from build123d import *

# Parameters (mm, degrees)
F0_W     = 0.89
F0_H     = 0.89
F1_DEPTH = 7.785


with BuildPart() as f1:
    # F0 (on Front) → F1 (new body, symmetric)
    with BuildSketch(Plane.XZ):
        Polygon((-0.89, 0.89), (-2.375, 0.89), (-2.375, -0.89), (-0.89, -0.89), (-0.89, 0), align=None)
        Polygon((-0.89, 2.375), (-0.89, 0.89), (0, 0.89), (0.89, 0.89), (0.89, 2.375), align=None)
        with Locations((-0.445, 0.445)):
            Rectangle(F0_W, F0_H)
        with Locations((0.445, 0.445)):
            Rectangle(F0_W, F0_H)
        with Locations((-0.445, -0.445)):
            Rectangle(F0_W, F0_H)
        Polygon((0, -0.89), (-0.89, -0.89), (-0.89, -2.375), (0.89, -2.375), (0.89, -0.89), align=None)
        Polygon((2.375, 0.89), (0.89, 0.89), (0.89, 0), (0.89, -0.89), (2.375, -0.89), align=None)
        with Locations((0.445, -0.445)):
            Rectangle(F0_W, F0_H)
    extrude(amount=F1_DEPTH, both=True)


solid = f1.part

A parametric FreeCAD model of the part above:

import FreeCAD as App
import Part
import Sketcher
Q = App.Units.Quantity

doc = App.newDocument("Part")
body = doc.addObject("PartDesign::Body", "Body")

sketch1 = body.newObject("Sketcher::SketchObject", "Sketch")
sketch1.AttachmentSupport = (doc.getObject("XZ_Plane"), [""])
sketch1.MapMode = "FlatFace"
sketch1.addGeometry(Part.LineSegment(App.Vector(0.89, -2.375, 0), App.Vector(0.89, -0.89, 0)), False)
sketch1.addGeometry(Part.LineSegment(App.Vector(0.89, -0.89, 0), App.Vector(2.375, -0.89, 0)), False)
sketch1.addGeometry(Part.LineSegment(App.Vector(2.375, -0.89, 0), App.Vector(2.375, 0.89, 0)), False)
sketch1.addGeometry(Part.LineSegment(App.Vector(2.375, 0.89, 0), App.Vector(0.89, 0.89, 0)), False)
sketch1.addGeometry(Part.LineSegment(App.Vector(0.89, 0.89, 0), App.Vector(0.89, 2.375, 0)), False)
sketch1.addGeometry(Part.LineSegment(App.Vector(0.89, 2.375, 0), App.Vector(-0.89, 2.375, 0)), False)
sketch1.addGeometry(Part.LineSegment(App.Vector(-0.89, 2.375, 0), App.Vector(-0.89, 0.89, 0)), False)
sketch1.addGeometry(Part.LineSegment(App.Vector(-0.89, 0.89, 0), App.Vector(-2.375, 0.89, 0)), False)
sketch1.addGeometry(Part.LineSegment(App.Vector(-2.375, 0.89, 0), App.Vector(-2.375, -0.89, 0)), False)
sketch1.addGeometry(Part.LineSegment(App.Vector(-2.375, -0.89, 0), App.Vector(-0.89, -0.89, 0)), False)
sketch1.addGeometry(Part.LineSegment(App.Vector(-0.89, -0.89, 0), App.Vector(-0.89, -2.375, 0)), False)
sketch1.addGeometry(Part.LineSegment(App.Vector(-0.89, -2.375, 0), App.Vector(0.89, -2.375, 0)), False)
sketch1.addConstraint(Sketcher.Constraint("Coincident", 0, 2, 1, 1))
sketch1.addConstraint(Sketcher.Constraint("Coincident", 1, 2, 2, 1))
sketch1.addConstraint(Sketcher.Constraint("Coincident", 2, 2, 3, 1))
sketch1.addConstraint(Sketcher.Constraint("Coincident", 3, 2, 4, 1))
sketch1.addConstraint(Sketcher.Constraint("Coincident", 4, 2, 5, 1))
sketch1.addConstraint(Sketcher.Constraint("Coincident", 5, 2, 6, 1))
sketch1.addConstraint(Sketcher.Constraint("Coincident", 6, 2, 7, 1))
sketch1.addConstraint(Sketcher.Constraint("Coincident", 7, 2, 8, 1))
sketch1.addConstraint(Sketcher.Constraint("Coincident", 8, 2, 9, 1))
sketch1.addConstraint(Sketcher.Constraint("Coincident", 9, 2, 10, 1))
sketch1.addConstraint(Sketcher.Constraint("Coincident", 10, 2, 11, 1))
sketch1.addConstraint(Sketcher.Constraint("Coincident", 11, 2, 0, 1))
sketch1.addConstraint(Sketcher.Constraint("Vertical", 0))
sketch1.addConstraint(Sketcher.Constraint("Horizontal", 1))
sketch1.addConstraint(Sketcher.Constraint("Vertical", 2))
sketch1.addConstraint(Sketcher.Constraint("Horizontal", 3))
sketch1.addConstraint(Sketcher.Constraint("Vertical", 4))
sketch1.addConstraint(Sketcher.Constraint("Horizontal", 5))
sketch1.addConstraint(Sketcher.Constraint("Vertical", 6))
sketch1.addConstraint(Sketcher.Constraint("Horizontal", 7))
sketch1.addConstraint(Sketcher.Constraint("Vertical", 8))
sketch1.addConstraint(Sketcher.Constraint("Horizontal", 9))
sketch1.addConstraint(Sketcher.Constraint("Vertical", 10))
sketch1.addConstraint(Sketcher.Constraint("Horizontal", 11))
sketch1.addConstraint(Sketcher.Constraint("Symmetric", 0, 2, 6, 2, -1, 1))
sketch1.addConstraint(Sketcher.Constraint("Symmetric", 2, 2, 8, 2, -1, 1))
sketch1.addConstraint(Sketcher.Constraint("Symmetric", 4, 2, 10, 2, -1, 1))
sketch1.addConstraint(Sketcher.Constraint("Symmetric", 3, 2, 6, 2, -2))
sketch1.addConstraint(Sketcher.Constraint("Equal", 9, 0))
sketch1.addConstraint(Sketcher.Constraint("Equal", 11, 2))
sketch1.addConstraint(Sketcher.Constraint("DistanceX", 5, 2, 5, 1, Q("1.78 mm")))
sketch1.addConstraint(Sketcher.Constraint("DistanceX", 1, 1, 1, 2, Q("1.485 mm")))
pad1 = body.newObject("PartDesign::Pad", "Pad")
pad1.Profile = sketch1
pad1.Length = 15.57
pad1.Midplane = True

doc.recompute()
